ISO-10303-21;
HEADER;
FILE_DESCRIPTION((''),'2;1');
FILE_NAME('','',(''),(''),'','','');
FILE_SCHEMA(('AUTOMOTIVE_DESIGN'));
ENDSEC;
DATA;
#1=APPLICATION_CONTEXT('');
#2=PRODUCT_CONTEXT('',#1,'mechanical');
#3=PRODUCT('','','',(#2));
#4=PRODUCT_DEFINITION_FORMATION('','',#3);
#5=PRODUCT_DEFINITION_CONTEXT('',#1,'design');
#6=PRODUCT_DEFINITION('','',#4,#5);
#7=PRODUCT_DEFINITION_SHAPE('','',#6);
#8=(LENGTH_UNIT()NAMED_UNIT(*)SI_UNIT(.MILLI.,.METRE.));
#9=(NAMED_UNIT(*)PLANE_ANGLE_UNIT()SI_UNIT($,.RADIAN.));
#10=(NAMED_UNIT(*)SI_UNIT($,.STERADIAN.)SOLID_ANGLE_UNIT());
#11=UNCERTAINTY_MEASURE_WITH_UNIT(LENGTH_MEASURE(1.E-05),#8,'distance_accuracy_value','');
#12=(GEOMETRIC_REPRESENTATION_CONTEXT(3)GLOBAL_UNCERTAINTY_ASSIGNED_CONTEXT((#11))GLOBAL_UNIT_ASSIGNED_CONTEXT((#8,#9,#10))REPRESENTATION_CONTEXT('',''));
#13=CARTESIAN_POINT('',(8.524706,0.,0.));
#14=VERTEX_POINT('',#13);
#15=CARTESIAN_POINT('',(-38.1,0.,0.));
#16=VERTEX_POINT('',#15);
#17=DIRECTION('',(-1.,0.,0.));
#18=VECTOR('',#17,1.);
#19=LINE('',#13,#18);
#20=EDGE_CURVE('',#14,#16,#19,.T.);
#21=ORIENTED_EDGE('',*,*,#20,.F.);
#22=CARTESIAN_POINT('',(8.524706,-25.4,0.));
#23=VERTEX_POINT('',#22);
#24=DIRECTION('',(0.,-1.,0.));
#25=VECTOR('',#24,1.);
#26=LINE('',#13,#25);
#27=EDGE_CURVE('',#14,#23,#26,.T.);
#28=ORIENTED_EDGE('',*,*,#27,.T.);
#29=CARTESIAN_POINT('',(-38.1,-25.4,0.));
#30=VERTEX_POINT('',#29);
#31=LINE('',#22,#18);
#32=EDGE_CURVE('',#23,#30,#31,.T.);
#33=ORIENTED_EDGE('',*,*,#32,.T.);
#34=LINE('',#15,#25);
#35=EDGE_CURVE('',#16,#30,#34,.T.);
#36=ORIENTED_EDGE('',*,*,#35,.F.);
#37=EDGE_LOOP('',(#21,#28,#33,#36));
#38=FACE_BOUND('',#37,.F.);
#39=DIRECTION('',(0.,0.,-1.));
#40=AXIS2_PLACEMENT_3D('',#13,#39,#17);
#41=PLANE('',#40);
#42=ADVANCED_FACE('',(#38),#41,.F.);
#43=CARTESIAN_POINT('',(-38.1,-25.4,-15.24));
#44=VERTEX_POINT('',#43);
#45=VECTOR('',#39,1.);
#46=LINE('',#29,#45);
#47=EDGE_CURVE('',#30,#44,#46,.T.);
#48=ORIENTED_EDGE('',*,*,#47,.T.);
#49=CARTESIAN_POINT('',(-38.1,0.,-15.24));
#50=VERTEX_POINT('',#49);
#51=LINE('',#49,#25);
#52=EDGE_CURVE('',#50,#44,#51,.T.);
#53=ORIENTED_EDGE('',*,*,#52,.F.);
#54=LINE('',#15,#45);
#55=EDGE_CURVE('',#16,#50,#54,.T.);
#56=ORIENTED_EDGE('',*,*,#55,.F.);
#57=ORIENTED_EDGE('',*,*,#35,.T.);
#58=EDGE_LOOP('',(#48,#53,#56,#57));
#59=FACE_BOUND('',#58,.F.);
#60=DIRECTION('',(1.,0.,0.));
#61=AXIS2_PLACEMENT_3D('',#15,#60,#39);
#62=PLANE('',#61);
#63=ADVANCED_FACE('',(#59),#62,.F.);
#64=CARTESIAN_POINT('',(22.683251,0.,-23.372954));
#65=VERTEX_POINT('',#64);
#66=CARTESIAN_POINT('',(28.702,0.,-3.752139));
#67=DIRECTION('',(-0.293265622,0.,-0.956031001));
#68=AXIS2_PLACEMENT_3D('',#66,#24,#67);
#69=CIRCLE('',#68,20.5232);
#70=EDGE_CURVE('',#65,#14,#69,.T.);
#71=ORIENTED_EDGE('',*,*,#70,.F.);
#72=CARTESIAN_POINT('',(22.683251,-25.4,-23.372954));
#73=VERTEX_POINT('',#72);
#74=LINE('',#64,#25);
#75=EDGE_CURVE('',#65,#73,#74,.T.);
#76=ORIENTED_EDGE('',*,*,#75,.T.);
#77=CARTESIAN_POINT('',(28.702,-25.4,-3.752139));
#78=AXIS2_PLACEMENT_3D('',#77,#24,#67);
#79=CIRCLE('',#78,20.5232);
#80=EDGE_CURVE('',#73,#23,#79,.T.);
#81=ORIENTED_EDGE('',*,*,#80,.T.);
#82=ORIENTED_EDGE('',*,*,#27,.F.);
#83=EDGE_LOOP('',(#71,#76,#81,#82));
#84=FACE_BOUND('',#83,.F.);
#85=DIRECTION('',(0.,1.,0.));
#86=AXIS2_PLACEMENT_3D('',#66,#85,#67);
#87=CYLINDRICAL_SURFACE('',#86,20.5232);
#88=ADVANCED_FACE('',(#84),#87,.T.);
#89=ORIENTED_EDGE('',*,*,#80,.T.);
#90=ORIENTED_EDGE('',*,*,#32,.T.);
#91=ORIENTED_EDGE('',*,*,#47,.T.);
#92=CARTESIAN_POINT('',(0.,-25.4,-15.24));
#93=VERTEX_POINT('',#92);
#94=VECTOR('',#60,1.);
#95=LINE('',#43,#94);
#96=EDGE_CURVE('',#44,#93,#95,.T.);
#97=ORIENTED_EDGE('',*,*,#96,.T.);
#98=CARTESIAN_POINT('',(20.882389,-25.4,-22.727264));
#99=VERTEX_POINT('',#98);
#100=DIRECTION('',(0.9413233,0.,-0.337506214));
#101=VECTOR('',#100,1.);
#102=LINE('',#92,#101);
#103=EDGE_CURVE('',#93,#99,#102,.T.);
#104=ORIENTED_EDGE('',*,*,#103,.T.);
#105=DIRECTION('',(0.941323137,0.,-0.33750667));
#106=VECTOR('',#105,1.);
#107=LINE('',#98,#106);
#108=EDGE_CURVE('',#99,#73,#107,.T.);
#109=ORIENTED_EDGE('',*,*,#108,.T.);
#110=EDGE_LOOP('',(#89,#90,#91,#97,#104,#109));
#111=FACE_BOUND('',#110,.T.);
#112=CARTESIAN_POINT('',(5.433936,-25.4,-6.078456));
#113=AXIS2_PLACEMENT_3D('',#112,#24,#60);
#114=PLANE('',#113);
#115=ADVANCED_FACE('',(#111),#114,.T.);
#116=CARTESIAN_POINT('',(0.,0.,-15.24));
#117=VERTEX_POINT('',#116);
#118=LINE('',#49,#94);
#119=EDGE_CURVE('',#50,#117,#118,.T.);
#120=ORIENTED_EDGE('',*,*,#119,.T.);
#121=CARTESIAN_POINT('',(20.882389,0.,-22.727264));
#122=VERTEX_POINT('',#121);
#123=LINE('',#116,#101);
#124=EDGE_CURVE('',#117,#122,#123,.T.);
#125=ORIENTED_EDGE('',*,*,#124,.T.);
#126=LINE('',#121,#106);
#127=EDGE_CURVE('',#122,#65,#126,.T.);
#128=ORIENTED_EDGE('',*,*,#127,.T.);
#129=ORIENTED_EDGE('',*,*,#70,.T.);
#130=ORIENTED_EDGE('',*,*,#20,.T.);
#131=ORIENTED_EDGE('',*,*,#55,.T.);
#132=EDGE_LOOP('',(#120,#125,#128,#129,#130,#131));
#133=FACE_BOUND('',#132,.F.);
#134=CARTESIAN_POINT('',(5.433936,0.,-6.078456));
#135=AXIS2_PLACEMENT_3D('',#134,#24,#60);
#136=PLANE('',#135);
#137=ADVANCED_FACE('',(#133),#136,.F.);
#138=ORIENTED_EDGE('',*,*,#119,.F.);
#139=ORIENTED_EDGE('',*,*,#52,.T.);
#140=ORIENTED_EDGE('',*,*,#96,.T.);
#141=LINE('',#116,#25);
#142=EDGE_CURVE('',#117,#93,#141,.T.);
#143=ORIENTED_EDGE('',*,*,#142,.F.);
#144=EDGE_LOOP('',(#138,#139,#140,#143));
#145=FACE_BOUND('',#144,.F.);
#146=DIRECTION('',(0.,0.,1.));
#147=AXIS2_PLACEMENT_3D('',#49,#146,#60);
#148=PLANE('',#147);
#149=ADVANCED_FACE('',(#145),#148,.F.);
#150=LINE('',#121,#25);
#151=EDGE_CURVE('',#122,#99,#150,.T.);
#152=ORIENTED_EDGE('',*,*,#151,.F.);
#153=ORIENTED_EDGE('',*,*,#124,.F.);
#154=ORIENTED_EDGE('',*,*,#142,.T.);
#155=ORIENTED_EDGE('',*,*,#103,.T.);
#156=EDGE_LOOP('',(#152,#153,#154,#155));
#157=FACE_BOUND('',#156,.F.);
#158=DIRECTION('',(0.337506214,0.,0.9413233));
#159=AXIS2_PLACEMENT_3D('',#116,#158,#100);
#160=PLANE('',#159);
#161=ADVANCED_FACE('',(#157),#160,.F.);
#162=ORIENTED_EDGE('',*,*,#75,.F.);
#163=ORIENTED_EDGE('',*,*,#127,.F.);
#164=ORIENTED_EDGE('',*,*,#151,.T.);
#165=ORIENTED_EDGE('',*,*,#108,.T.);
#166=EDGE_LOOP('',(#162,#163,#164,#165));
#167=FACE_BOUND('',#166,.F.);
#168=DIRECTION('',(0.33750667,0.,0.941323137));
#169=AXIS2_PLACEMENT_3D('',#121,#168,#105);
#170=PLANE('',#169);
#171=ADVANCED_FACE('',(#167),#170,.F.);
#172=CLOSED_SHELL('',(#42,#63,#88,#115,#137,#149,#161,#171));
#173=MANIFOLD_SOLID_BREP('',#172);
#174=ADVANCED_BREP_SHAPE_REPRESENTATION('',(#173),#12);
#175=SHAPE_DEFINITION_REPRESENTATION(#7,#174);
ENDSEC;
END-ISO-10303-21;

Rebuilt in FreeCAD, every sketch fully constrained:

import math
import FreeCAD as App
import Part
import Sketcher

V = App.Vector
Q = App.Units.Quantity

doc = App.newDocument("Part")
body = doc.addObject("PartDesign::Body", "Body")

sketch1 = doc.addObject("Sketcher::SketchObject", "Sketch")
body.addObject(sketch1)
sketch1.AttachmentSupport = (doc.XZ_Plane, [""])
sketch1.MapMode = "FlatFace"
sketch1.addGeometry(Part.LineSegment(V(8.5, 0, 0), V(-38.1, 0, 0)), False)
sketch1.addGeometry(Part.LineSegment(V(-38.1, 0, 0), V(-38.1, -15.2, 0)), False)
sketch1.addGeometry(Part.LineSegment(V(-38.1, -15.2, 0), V(0, -15.2, 0)), False)
sketch1.addGeometry(Part.LineSegment(V(0, -15.2, 0), V(20.9, -22.7, 0)), False)
sketch1.addGeometry(Part.LineSegment(V(20.9, -22.7, 0), V(22.7, -23.4, 0)), False)
sketch1.addGeometry(Part.ArcOfCircle(Part.Circle(V(28.7, -3.8, 0), V(0, 0, 1), 20.5), math.radians(-107), math.radians(169)), False)
sketch1.addConstraint(Sketcher.Constraint("Coincident", 0, 2, 1, 1))
sketch1.addConstraint(Sketcher.Constraint("Coincident", 1, 2, 2, 1))
sketch1.addConstraint(Sketcher.Constraint("Coincident", 2, 2, 3, 1))
sketch1.addConstraint(Sketcher.Constraint("Coincident", 3, 2, 4, 1))
sketch1.addConstraint(Sketcher.Constraint("Coincident", 4, 2, 5, 1))
sketch1.addConstraint(Sketcher.Constraint("Coincident", 5, 2, 0, 1))
sketch1.addConstraint(Sketcher.Constraint("Horizontal", 0))
sketch1.addConstraint(Sketcher.Constraint("Vertical", 1))
sketch1.addConstraint(Sketcher.Constraint("Horizontal", 2))
sketch1.addConstraint(Sketcher.Constraint("PointOnObject", 0, 2, -1))
sketch1.addConstraint(Sketcher.Constraint("PointOnObject", 2, 2, -2))
sketch1.addConstraint(Sketcher.Constraint("Parallel", 3, 4))
sketch1.addConstraint(Sketcher.Constraint("DistanceX", 2, 1, 2, 2, Q("1.5 in")))
sketch1.addConstraint(Sketcher.Constraint("DistanceY", 1, 2, 1, 1, Q("0.6 in")))
sketch1.addConstraint(Sketcher.Constraint("Radius", 5, Q("0.808 in")))
sketch1.addConstraint(Sketcher.Constraint("DistanceX", -1, 1, 5, 3, Q("1.13 in")))
sketch1.addConstraint(Sketcher.Constraint("DistanceX", 3, 2, 4, 2, Q("0.0709001 in")))
sketch1.addConstraint(Sketcher.Constraint("DistanceX", 0, 2, 0, 1, Q("46.624706 mm")))
sketch1.addConstraint(Sketcher.Constraint("DistanceX", -1, 1, 3, 2, Q("20.882389 mm")))
pad1 = doc.addObject("PartDesign::Pad", "Pad")
body.addObject(pad1)
pad1.Profile = sketch1
pad1.Length = Q("1 in")

doc.recompute()
